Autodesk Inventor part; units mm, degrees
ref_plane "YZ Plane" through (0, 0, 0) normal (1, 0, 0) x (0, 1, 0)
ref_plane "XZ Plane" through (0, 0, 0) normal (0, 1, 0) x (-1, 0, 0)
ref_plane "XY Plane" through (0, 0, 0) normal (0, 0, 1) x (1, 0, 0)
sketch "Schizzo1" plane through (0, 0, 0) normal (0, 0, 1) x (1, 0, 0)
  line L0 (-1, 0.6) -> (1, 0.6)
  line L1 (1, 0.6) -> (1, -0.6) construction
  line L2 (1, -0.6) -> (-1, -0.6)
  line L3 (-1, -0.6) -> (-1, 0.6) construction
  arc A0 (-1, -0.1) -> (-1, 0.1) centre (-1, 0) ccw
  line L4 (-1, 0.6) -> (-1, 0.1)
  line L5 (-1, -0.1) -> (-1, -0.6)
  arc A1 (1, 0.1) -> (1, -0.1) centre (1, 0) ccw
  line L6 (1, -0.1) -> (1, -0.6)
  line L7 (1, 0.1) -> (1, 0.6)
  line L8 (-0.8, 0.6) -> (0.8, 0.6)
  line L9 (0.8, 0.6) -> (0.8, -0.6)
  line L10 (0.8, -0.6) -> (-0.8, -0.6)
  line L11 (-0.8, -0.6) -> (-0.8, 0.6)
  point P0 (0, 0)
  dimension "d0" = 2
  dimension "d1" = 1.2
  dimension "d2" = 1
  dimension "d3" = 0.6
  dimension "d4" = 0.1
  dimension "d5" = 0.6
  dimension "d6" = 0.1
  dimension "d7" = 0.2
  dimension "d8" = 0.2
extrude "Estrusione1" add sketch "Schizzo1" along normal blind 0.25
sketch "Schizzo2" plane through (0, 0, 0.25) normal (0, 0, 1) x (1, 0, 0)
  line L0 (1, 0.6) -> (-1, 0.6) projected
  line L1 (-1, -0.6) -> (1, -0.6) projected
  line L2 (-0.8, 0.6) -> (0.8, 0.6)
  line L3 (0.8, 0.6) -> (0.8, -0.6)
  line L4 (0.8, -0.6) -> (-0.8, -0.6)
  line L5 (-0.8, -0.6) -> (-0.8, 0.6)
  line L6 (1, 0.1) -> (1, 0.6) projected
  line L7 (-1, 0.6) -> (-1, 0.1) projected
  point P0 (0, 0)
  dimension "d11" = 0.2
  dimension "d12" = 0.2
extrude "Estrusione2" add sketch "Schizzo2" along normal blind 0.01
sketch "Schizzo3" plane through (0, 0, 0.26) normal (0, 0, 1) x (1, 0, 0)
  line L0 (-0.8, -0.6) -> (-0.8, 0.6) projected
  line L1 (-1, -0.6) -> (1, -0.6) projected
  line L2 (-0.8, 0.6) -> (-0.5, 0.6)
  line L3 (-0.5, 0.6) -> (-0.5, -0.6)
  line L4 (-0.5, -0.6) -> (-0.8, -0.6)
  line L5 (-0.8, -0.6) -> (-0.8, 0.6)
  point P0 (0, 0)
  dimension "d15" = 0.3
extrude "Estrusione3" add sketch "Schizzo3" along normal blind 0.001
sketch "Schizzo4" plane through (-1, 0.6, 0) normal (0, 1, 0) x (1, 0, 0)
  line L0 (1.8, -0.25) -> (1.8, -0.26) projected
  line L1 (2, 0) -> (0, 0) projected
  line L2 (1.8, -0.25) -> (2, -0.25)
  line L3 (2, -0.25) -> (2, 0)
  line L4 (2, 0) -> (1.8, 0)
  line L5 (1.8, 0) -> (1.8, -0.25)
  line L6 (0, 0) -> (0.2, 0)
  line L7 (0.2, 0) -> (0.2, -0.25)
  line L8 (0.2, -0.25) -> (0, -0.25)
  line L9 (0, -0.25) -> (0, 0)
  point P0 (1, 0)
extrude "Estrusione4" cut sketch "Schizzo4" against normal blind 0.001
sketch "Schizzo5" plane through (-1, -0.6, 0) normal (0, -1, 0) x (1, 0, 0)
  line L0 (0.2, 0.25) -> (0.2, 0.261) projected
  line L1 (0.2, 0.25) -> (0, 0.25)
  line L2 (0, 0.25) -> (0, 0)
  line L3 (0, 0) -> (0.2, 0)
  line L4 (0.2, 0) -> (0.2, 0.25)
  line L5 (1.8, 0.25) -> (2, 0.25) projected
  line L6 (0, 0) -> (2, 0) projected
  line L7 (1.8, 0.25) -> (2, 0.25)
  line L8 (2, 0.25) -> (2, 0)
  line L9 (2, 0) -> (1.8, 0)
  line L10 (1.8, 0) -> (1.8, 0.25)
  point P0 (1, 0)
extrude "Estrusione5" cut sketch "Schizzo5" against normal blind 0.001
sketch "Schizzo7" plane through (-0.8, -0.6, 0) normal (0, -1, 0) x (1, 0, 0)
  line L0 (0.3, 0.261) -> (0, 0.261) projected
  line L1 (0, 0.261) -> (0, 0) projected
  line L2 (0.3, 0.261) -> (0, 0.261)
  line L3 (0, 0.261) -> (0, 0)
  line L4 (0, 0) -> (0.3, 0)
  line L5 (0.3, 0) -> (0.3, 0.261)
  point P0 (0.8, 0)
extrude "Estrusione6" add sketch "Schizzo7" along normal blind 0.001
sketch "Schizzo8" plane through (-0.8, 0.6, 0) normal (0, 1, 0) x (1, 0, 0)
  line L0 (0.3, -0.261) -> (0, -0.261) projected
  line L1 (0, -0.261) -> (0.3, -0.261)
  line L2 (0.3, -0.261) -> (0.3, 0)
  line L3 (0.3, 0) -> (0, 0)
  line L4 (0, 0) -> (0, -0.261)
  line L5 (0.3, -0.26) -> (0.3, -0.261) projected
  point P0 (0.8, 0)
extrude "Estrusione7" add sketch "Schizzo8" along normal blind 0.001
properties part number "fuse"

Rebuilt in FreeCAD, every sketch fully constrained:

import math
import FreeCAD as App
import Part
import Sketcher

V = App.Vector


def add_polygon(sketch, points):
    """Adds a closed chain of lines whose ends are joined by coincident constraints."""
    first, n = sketch.GeometryCount, len(points)
    for a, b in zip(points, points[1:] + points[:1]):
        sketch.addGeometry(Part.LineSegment(App.Vector(*a, 0), App.Vector(*b, 0)), False)
    for i in range(n):
        sketch.addConstraint(Sketcher.Constraint("Coincident", first + i, 2, first + (i + 1) % n, 1))

doc = App.newDocument("Part")
body = doc.addObject("PartDesign::Body", "Body")

# Sketch on XY plane
sketch1 = body.newObject("Sketcher::SketchObject", "Sketch")
sketch1.AttachmentSupport = (doc.getObject("XY_Plane"), [""])
sketch1.MapMode = "FlatFace"
sketch1.addGeometry([
    Part.LineSegment(V(-1, 0.6, 0), V(-1, 0.1, 0)),  # 0
    Part.ArcOfCircle(Part.Circle(V(-1, 0, 0), V(0, 0, 1), 0.1), math.radians(-90), math.radians(90)),  # 1
    Part.LineSegment(V(-1, -0.1, 0), V(-1, -0.6, 0)),  # 2
    Part.LineSegment(V(-1, -0.6, 0), V(1, -0.6, 0)),  # 3
    Part.LineSegment(V(1, -0.6, 0), V(1, -0.1, 0)),  # 4
    Part.ArcOfCircle(Part.Circle(V(1, 0, 0), V(0, 0, 1), 0.1), math.radians(90), math.radians(270)),  # 5
    Part.LineSegment(V(1, 0.1, 0), V(1, 0.6, 0)),  # 6
    Part.LineSegment(V(1, 0.6, 0), V(-1, 0.6, 0)),  # 7
], False)
sketch1.addConstraint([
    Sketcher.Constraint("Coincident", 0, 2, 1, 2),
    Sketcher.Constraint("Coincident", 1, 1, 2, 1),
    Sketcher.Constraint("Coincident", 2, 2, 3, 1),
    Sketcher.Constraint("Coincident", 3, 2, 4, 1),
    Sketcher.Constraint("Coincident", 4, 2, 5, 2),
    Sketcher.Constraint("Coincident", 5, 1, 6, 1),
    Sketcher.Constraint("Coincident", 6, 2, 7, 1),
    Sketcher.Constraint("Coincident", 7, 2, 0, 1),
    Sketcher.Constraint("Vertical", 0),
    Sketcher.Constraint("Vertical", 2),
    Sketcher.Constraint("Horizontal", 3),
    Sketcher.Constraint("Vertical", 4),
    Sketcher.Constraint("Vertical", 6),
    Sketcher.Constraint("Horizontal", 7),
    Sketcher.Constraint("Equal", 1, 5),
    Sketcher.Constraint("Symmetric", 1, 3, 5, 3, -1, 1),
    Sketcher.Constraint("Symmetric", 2, 2, 6, 2, -1, 1),
    Sketcher.Constraint("Symmetric", 1, 1, 4, 2, -2),
    Sketcher.Constraint("Vertical", 1, 3, 0, 2),
    Sketcher.Constraint("Vertical", 0, 2, 1, 1),
    Sketcher.Constraint("Radius", 1, 0.1),
    Sketcher.Constraint("DistanceX", 3, 1, 3, 2, 2.0),
    Sketcher.Constraint("DistanceY", 2, 2, -1, 1, 0.6),
])
pad1 = body.newObject("PartDesign::Pad", "Pad")
pad1.Profile = sketch1
pad1.Length = 0.25

# Sketch on XY plane
sketch2 = body.newObject("Sketcher::SketchObject", "Sketch001")
sketch2.AttachmentSupport = (doc.getObject("XY_Plane"), [""])
sketch2.MapMode = "FlatFace"
sketch2.AttachmentOffset = App.Placement(V(0, 0, 0.25), App.Rotation())
add_polygon(sketch2, [(0.8, -0.6), (0.8, 0.6), (-0.8, 0.6), (-0.8, -0.6)])  # lines 0-3
sketch2.addConstraint([
    Sketcher.Constraint("Vertical", 0),
    Sketcher.Constraint("Horizontal", 1),
    Sketcher.Constraint("Vertical", 2),
    Sketcher.Constraint("Horizontal", 3),
    Sketcher.Constraint("Symmetric", 0, 2, 2, 2, -1, 1),
    Sketcher.Constraint("DistanceX", 1, 2, 1, 1, 1.6),
    Sketcher.Constraint("DistanceY", 0, 1, 0, 2, 1.2),
])
pad2 = body.newObject("PartDesign::Pad", "Pad001")
pad2.Profile = sketch2
pad2.Length = 0.01

# Sketch on XY plane
sketch3 = body.newObject("Sketcher::SketchObject", "Sketch002")
sketch3.AttachmentSupport = (doc.getObject("XY_Plane"), [""])
sketch3.MapMode = "FlatFace"
sketch3.AttachmentOffset = App.Placement(V(0, 0, 0.26), App.Rotation())
add_polygon(sketch3, [(-0.8, 0.6), (-0.8, -0.6), (-0.5, -0.6), (-0.5, 0.6)])  # lines 0-3
sketch3.addConstraint([
    Sketcher.Constraint("Vertical", 0),
    Sketcher.Constraint("Horizontal", 1),
    Sketcher.Constraint("Vertical", 2),
    Sketcher.Constraint("Horizontal", 3),
    Sketcher.Constraint("DistanceX", 1, 1, 1, 2, 0.3),
    Sketcher.Constraint("DistanceY", 0, 2, 0, 1, 1.2),
    Sketcher.Constraint("DistanceX", 0, 2, -1, 1, 0.8),
    Sketcher.Constraint("DistanceY", 0, 2, -1, 1, 0.6),
])
pad3 = body.newObject("PartDesign::Pad", "Pad002")
pad3.Profile = sketch3
pad3.Length = 0.001

# Sketch on XZ plane
sketch4 = body.newObject("Sketcher::SketchObject", "Sketch003")
sketch4.AttachmentSupport = (doc.getObject("XZ_Plane"), [""])
sketch4.MapMode = "FlatFace"
sketch4.AttachmentOffset = App.Placement(V(0, 0, -0.6), App.Rotation())
add_polygon(sketch4, [(1, 0.25), (1, 0), (0.8, 0), (0.8, 0.25)])  # lines 0-3
add_polygon(sketch4, [(-0.8, 0.25), (-0.8, 0), (-1, 0), (-1, 0.25)])  # lines 4-7
sketch4.addConstraint([
    Sketcher.Constraint("Vertical", 0),
    Sketcher.Constraint("Horizontal", 1),
    Sketcher.Constraint("Vertical", 2),
    Sketcher.Constraint("Horizontal", 3),
    Sketcher.Constraint("Vertical", 4),
    Sketcher.Constraint("Horizontal", 5),
    Sketcher.Constraint("Vertical", 6),
    Sketcher.Constraint("Horizontal", 7),
    Sketcher.Constraint("Symmetric", 1, 2, 4, 2, -1, 1),
    Sketcher.Constraint("Symmetric", 0, 2, 5, 2, -2),
    Sketcher.Constraint("Horizontal", 3, 2, 6, 2),
    Sketcher.Constraint("DistanceX", 1, 2, 1, 1, 0.2),
    Sketcher.Constraint("DistanceX", -1, 1, 0, 2, 1.0),
    Sketcher.Constraint("DistanceY", 0, 2, 0, 1, 0.25),
])
pocket1 = body.newObject("PartDesign::Pocket", "Pocket")
pocket1.Profile = sketch4
pocket1.Length = 0.001
pocket1.Reversed = True

# Sketch on XZ plane
sketch5 = body.newObject("Sketcher::SketchObject", "Sketch004")
sketch5.AttachmentSupport = (doc.getObject("XZ_Plane"), [""])
sketch5.MapMode = "FlatFace"
sketch5.AttachmentOffset = App.Placement(V(0, 0, 0.6), App.Rotation())
add_polygon(sketch5, [(-0.8, 0), (-0.8, 0.25), (-1, 0.25), (-1, 0)])  # lines 0-3
add_polygon(sketch5, [(0.8, 0.25), (0.8, 0), (1, 0), (1, 0.25)])  # lines 4-7
sketch5.addConstraint([
    Sketcher.Constraint("Vertical", 0),
    Sketcher.Constraint("Horizontal", 1),
    Sketcher.Constraint("Vertical", 2),
    Sketcher.Constraint("Horizontal", 3),
    Sketcher.Constraint("Vertical", 4),
    Sketcher.Constraint("Horizontal", 5),
    Sketcher.Constraint("Vertical", 6),
    Sketcher.Constraint("Horizontal", 7),
    Sketcher.Constraint("Symmetric", 3, 2, 4, 2, -1, 1),
    Sketcher.Constraint("Symmetric", 2, 2, 5, 2, -2),
    Sketcher.Constraint("Horizontal", 1, 2, 6, 2),
    Sketcher.Constraint("DistanceX", 1, 2, 1, 1, 0.2),
    Sketcher.Constraint("DistanceX", 1, 2, -1, 1, 1.0),
    Sketcher.Constraint("DistanceY", 0, 1, 0, 2, 0.25),
])
pocket2 = body.newObject("PartDesign::Pocket", "Pocket001")
pocket2.Profile = sketch5
pocket2.Length = 0.001

# Sketch on XZ plane
sketch6 = body.newObject("Sketcher::SketchObject", "Sketch005")
sketch6.AttachmentSupport = (doc.getObject("XZ_Plane"), [""])
sketch6.MapMode = "FlatFace"
sketch6.AttachmentOffset = App.Placement(V(0, 0, 0.6), App.Rotation())
add_polygon(sketch6, [(-0.5, 0), (-0.5, 0.26), (-0.8, 0.26), (-0.8, 0)])  # lines 0-3
sketch6.addConstraint([
    Sketcher.Constraint("Vertical", 0),
    Sketcher.Constraint("Horizontal", 1),
    Sketcher.Constraint("Vertical", 2),
    Sketcher.Constraint("Horizontal", 3),
    Sketcher.Constraint("PointOnObject", 2, 2, -1),
    Sketcher.Constraint("DistanceX", 1, 2, 1, 1, 0.3),
    Sketcher.Constraint("DistanceX", 0, 2, -1, 1, 0.5),
    Sketcher.Constraint("DistanceY", 0, 1, 0, 2, 0.261),
])
pad4 = body.newObject("PartDesign::Pad", "Pad003")
pad4.Profile = sketch6
pad4.Length = 0.001

# Sketch on XZ plane
sketch7 = body.newObject("Sketcher::SketchObject", "Sketch006")
sketch7.AttachmentSupport = (doc.getObject("XZ_Plane"), [""])
sketch7.MapMode = "FlatFace"
sketch7.AttachmentOffset = App.Placement(V(0, 0, -0.6), App.Rotation())
add_polygon(sketch7, [(-0.8, 0.26), (-0.5, 0.26), (-0.5, 0), (-0.8, 0)])  # lines 0-3
sketch7.addConstraint([
    Sketcher.Constraint("Horizontal", 0),
    Sketcher.Constraint("Vertical", 1),
    Sketcher.Constraint("Horizontal", 2),
    Sketcher.Constraint("Vertical", 3),
    Sketcher.Constraint("PointOnObject", 1, 2, -1),
    Sketcher.Constraint("DistanceX", 0, 1, 0, 2, 0.3),
    Sketcher.Constraint("DistanceX", 0, 2, -1, 1, 0.5),
    Sketcher.Constraint("DistanceY", 1, 2, 1, 1, 0.261),
])
pad5 = body.newObject("PartDesign::Pad", "Pad004")
pad5.Profile = sketch7
pad5.Length = 0.001
pad5.Reversed = True

doc.recompute()
